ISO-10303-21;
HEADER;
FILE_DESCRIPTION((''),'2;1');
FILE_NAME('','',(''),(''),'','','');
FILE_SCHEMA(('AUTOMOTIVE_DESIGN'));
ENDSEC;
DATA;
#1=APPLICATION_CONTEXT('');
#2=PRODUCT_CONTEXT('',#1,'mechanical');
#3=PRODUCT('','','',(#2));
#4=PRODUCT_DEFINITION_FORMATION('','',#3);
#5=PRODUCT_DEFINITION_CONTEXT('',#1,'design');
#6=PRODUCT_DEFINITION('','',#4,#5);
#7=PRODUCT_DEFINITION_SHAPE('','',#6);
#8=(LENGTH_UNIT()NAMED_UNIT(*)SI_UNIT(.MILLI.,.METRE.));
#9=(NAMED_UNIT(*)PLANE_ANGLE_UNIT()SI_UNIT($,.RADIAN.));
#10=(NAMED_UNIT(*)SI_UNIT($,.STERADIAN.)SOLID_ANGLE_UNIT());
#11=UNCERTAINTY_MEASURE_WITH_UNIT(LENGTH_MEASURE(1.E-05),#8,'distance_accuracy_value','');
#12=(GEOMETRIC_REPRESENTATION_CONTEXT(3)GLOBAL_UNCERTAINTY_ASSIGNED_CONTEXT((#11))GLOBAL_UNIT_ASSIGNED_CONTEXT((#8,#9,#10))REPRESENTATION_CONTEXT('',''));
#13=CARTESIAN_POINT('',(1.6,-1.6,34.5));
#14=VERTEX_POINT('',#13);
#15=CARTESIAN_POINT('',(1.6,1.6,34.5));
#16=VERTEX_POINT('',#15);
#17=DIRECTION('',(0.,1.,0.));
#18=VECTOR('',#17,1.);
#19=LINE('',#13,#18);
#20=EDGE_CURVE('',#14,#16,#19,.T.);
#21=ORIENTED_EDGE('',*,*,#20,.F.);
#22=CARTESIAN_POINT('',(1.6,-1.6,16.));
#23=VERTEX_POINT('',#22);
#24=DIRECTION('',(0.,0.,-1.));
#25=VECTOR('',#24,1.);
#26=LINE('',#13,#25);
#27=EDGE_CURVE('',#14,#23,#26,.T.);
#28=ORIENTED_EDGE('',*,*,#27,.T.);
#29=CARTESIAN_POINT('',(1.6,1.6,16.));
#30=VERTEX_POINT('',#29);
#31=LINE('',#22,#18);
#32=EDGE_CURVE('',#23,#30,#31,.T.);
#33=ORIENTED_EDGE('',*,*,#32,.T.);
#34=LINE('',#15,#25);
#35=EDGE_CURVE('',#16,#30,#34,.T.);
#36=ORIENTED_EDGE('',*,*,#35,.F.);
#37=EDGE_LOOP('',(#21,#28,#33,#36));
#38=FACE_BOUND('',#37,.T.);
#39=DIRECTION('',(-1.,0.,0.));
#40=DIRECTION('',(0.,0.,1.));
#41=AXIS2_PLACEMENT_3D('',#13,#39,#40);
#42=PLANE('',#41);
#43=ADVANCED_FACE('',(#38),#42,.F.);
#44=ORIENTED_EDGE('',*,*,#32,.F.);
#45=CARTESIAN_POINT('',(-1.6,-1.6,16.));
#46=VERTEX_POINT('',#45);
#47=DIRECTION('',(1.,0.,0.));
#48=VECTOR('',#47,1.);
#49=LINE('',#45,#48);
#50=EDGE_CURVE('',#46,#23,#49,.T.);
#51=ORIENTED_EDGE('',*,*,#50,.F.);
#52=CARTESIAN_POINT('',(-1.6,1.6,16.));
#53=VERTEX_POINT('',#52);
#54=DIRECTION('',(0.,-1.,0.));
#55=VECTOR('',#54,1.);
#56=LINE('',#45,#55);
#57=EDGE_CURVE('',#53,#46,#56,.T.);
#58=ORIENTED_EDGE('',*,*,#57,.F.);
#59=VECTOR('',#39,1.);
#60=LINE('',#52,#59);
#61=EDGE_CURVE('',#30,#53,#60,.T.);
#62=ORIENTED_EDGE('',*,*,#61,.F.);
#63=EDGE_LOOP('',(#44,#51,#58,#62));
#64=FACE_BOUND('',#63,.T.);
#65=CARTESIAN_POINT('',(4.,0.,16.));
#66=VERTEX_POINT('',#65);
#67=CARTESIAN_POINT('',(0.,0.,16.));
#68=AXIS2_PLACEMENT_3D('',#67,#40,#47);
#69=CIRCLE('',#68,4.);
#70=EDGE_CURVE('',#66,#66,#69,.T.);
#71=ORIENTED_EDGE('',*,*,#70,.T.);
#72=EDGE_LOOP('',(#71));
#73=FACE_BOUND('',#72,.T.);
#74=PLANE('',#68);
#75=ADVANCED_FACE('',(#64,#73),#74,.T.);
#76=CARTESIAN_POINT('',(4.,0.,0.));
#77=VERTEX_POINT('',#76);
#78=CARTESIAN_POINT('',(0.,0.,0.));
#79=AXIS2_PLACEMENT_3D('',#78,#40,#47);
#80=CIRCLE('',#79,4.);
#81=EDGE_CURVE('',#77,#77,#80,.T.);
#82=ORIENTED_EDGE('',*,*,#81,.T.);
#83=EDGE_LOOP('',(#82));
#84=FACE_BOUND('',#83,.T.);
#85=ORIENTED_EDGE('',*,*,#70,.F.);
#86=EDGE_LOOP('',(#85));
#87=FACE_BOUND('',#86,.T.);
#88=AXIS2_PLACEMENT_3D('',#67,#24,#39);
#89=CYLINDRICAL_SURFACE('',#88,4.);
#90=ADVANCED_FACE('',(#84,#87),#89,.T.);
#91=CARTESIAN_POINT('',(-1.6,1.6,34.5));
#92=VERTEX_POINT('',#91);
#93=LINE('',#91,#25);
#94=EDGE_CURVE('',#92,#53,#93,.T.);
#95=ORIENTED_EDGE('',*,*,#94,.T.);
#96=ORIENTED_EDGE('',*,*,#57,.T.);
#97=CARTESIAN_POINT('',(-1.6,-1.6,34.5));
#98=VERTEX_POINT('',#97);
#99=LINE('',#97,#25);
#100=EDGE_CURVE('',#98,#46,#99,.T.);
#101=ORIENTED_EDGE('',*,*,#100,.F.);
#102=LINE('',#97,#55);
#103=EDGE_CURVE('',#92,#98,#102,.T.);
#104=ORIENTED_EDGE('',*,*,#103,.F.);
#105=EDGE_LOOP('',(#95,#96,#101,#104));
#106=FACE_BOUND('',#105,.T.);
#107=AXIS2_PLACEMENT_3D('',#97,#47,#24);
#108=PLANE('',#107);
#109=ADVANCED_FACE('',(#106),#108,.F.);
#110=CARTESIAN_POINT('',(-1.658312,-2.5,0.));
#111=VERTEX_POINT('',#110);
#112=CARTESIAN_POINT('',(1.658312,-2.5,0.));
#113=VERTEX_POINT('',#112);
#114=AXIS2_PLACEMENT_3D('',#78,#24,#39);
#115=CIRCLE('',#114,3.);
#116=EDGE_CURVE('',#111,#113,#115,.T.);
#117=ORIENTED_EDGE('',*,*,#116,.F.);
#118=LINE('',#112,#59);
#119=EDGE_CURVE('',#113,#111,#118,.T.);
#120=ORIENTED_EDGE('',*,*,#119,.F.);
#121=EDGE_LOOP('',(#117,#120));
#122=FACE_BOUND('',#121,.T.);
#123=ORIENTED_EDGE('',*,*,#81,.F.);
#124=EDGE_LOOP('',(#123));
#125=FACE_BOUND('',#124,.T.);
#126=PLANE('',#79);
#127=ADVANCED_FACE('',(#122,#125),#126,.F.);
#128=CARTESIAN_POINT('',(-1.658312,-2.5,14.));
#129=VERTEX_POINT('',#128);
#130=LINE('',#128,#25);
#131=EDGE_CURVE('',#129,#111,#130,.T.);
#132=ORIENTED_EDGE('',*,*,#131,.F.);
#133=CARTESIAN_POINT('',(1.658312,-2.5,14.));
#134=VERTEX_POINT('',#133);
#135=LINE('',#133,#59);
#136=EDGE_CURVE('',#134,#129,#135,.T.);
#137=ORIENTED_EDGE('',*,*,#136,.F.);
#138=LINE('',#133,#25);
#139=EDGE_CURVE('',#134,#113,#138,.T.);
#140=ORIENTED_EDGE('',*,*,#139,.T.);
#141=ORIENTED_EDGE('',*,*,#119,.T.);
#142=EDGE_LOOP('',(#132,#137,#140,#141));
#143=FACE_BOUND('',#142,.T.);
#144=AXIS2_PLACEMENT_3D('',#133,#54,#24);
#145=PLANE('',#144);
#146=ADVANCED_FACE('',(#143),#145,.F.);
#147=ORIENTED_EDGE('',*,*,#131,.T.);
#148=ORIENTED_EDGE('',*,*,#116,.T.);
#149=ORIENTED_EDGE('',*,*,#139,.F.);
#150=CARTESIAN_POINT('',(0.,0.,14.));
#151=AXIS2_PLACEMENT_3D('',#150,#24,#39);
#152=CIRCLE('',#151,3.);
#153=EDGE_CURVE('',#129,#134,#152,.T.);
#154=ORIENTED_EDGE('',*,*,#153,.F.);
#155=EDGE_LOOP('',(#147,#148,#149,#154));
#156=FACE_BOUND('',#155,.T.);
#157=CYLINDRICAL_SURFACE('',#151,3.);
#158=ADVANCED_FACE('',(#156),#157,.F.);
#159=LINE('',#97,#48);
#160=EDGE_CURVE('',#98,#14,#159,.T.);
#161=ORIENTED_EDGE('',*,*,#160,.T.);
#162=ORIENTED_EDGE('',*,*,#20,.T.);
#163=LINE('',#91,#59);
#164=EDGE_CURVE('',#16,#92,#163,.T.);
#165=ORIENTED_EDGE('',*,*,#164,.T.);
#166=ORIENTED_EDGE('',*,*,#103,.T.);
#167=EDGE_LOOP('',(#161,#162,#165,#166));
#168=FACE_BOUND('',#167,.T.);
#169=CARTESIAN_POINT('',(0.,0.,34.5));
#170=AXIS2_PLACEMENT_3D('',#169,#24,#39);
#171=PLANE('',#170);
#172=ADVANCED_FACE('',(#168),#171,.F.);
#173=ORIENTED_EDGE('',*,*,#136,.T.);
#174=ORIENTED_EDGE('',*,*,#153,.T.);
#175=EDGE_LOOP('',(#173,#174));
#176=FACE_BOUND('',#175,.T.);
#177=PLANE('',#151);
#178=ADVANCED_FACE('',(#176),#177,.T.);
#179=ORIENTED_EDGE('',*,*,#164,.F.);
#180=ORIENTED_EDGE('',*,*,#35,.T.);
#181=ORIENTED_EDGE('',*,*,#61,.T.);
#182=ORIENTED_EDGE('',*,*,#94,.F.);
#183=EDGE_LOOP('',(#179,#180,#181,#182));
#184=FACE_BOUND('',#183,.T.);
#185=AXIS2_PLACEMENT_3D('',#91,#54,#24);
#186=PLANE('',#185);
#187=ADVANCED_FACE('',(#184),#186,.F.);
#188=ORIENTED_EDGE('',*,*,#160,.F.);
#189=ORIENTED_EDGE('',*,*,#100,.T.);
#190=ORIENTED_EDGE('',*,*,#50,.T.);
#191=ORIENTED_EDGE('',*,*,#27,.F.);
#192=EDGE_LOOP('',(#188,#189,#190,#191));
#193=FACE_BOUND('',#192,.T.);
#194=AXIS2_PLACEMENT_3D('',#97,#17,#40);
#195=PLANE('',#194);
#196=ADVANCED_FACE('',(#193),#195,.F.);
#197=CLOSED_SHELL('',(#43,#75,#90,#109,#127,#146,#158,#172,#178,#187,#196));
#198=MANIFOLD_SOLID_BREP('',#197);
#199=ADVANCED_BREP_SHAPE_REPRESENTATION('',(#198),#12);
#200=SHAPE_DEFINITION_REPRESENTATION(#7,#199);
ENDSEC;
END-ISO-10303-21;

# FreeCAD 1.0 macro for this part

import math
import FreeCAD as App
import Part
import Sketcher
Q = App.Units.Quantity

doc = App.newDocument("Part")
body = doc.addObject("PartDesign::Body", "Body")

# Sketch on XY plane
sketch1 = doc.addObject("Sketcher::SketchObject", "Sketch")
body.addObject(sketch1)
sketch1.AttachmentSupport = (doc.XY_Plane, [""])
sketch1.MapMode = "FlatFace"
sketch1.addGeometry(Part.Circle(App.Vector(0, 0, 0), App.Vector(0, 0, 1), 4), False)
sketch1.addConstraint([
    Sketcher.Constraint("Coincident", 0, 3, -1, 1),
    Sketcher.Constraint("Diameter", 0, Q("8 mm")),
])
pad1 = doc.addObject("PartDesign::Pad", "Pad")
body.addObject(pad1)
pad1.Profile = sketch1
pad1.Length = 16

# Sketch on XY plane
sketch2 = doc.addObject("Sketcher::SketchObject", "Sketch001")
body.addObject(sketch2)
sketch2.AttachmentSupport = (doc.XY_Plane, [""])
sketch2.MapMode = "FlatFace"
sketch2.addGeometry([
    Part.LineSegment(App.Vector(1.658312, -2.5, 0), App.Vector(-1.658312, -2.5, 0)),
    Part.ArcOfCircle(Part.Circle(App.Vector(0, 0, 0), App.Vector(0, 0, 1), 3), math.radians(-56.44269), math.radians(236.44269)),
], False)
sketch2.addConstraint([
    Sketcher.Constraint("Coincident", 0, 1, 1, 1),
    Sketcher.Constraint("Coincident", 1, 2, 0, 2),
    Sketcher.Constraint("Horizontal", 0),
    Sketcher.Constraint("Coincident", 1, 3, -1, 1),
    Sketcher.Constraint("Radius", 1, Q("3 mm")),
    Sketcher.Constraint("DistanceY", 0, 1, -1, 1, Q("2.5 mm")),
])
pocket1 = doc.addObject("PartDesign::Pocket", "Pocket")
body.addObject(pocket1)
pocket1.Profile = sketch2
pocket1.Length = 14
pocket1.Reversed = True

# Sketch on XY plane
sketch3 = doc.addObject("Sketcher::SketchObject", "Sketch002")
body.addObject(sketch3)
sketch3.AttachmentSupport = (doc.XY_Plane, [""])
sketch3.MapMode = "FlatFace"
sketch3.AttachmentOffset = App.Placement(App.Vector(0, 0, 16), App.Rotation())
sketch3.addGeometry([
    Part.LineSegment(App.Vector(-1.6, 1.6, 0), App.Vector(-1.6, -1.6, 0)),
    Part.LineSegment(App.Vector(-1.6, -1.6, 0), App.Vector(1.6, -1.6, 0)),
    Part.LineSegment(App.Vector(1.6, -1.6, 0), App.Vector(1.6, 1.6, 0)),
    Part.LineSegment(App.Vector(1.6, 1.6, 0), App.Vector(-1.6, 1.6, 0)),
], False)
sketch3.addConstraint([
    Sketcher.Constraint("Coincident", 0, 2, 1, 1),
    Sketcher.Constraint("Coincident", 1, 2, 2, 1),
    Sketcher.Constraint("Coincident", 2, 2, 3, 1),
    Sketcher.Constraint("Coincident", 3, 2, 0, 1),
    Sketcher.Constraint("Vertical", 0),
    Sketcher.Constraint("Horizontal", 1),
    Sketcher.Constraint("Vertical", 2),
    Sketcher.Constraint("Horizontal", 3),
    Sketcher.Constraint("Symmetric", 0, 2, 2, 2, -1, 1),
    Sketcher.Constraint("Equal", 3, 0),
    Sketcher.Constraint("DistanceX", 1, 1, 1, 2, Q("3.2 mm")),
])
pad2 = doc.addObject("PartDesign::Pad", "Pad001")
body.addObject(pad2)
pad2.Profile = sketch3
pad2.Length = 18.5

doc.recompute()
